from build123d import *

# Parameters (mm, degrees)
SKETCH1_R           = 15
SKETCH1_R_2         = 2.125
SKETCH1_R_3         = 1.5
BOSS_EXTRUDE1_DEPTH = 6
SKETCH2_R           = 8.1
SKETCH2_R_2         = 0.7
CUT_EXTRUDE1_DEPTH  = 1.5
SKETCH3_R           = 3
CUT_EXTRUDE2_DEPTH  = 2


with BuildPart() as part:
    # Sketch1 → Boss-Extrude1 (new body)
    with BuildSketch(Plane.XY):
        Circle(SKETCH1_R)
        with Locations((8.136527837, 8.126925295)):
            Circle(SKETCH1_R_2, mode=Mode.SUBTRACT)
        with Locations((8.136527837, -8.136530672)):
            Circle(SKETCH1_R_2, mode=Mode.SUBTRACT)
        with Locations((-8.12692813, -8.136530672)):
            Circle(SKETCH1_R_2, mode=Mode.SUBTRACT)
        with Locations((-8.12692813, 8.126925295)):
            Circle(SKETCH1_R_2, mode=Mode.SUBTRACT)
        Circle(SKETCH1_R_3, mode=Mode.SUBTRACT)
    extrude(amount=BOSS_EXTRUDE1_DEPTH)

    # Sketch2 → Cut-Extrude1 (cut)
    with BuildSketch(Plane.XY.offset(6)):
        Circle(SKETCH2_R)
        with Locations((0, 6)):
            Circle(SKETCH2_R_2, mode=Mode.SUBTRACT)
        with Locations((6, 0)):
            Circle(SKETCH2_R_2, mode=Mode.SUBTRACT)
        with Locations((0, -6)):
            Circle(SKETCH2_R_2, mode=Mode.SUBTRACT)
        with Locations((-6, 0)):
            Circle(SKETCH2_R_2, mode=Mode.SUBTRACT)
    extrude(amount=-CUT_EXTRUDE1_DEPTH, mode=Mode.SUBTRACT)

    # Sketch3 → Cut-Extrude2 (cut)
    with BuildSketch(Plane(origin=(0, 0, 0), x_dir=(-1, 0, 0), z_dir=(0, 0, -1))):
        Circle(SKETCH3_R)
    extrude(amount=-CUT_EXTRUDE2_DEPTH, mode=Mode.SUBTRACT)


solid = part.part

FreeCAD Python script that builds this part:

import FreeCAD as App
import Part
import Sketcher

V = App.Vector
Q = App.Units.Quantity

doc = App.newDocument("Part")
body = doc.addObject("PartDesign::Body", "Body")

# Sketch on XY plane
sketch1 = doc.addObject("Sketcher::SketchObject", "Sketch")
body.addObject(sketch1)
sketch1.AttachmentSupport = (doc.XY_Plane, [""])
sketch1.MapMode = "FlatFace"
sketch1.addGeometry([
    Part.Circle(V(0, 0, 0), V(0, 0, 1), 15),  # 0
    Part.Circle(V(-8.1, -8.1, 0), V(0, 0, 1), 2.1),  # 1
    Part.Circle(V(8.1, -8.1, 0), V(0, 0, 1), 2.1),  # 2
    Part.Circle(V(0, 0, 0), V(0, 0, 1), 1.5),  # 3
    Part.Circle(V(-8.1, 8.1, 0), V(0, 0, 1), 2.1),  # 4
    Part.Circle(V(8.1, 8.1, 0), V(0, 0, 1), 2.1),  # 5
], False)
sketch1.addConstraint([
    Sketcher.Constraint("Coincident", 0, 3, -1, 1),
    Sketcher.Constraint("Coincident", 3, 3, -1, 1),
    Sketcher.Constraint("Equal", 1, 2),
    Sketcher.Constraint("Equal", 2, 4),
    Sketcher.Constraint("Equal", 4, 5),
    Sketcher.Constraint("Horizontal", 1, 3, 2, 3),
    Sketcher.Constraint("Horizontal", 4, 3, 5, 3),
    Sketcher.Constraint("Vertical", 1, 3, 4, 3),
    Sketcher.Constraint("Vertical", 2, 3, 5, 3),
    Sketcher.Constraint("Diameter", 0, Q("30 mm")),
    Sketcher.Constraint("Diameter", 3, Q("3 mm")),
    Sketcher.Constraint("Diameter", 1, Q("4.25 mm")),
    Sketcher.Constraint("DistanceX", 1, 3, -1, 1, Q("8.126928 mm")),
    Sketcher.Constraint("DistanceY", 1, 3, -1, 1, Q("8.136531 mm")),
    Sketcher.Constraint("DistanceX", -1, 1, 2, 3, Q("8.136528 mm")),
    Sketcher.Constraint("DistanceY", -1, 1, 4, 3, Q("8.126925 mm")),
])
pad1 = doc.addObject("PartDesign::Pad", "Pad")
body.addObject(pad1)
pad1.Profile = sketch1
pad1.Length = 6

# Sketch on XY plane
sketch2 = doc.addObject("Sketcher::SketchObject", "Sketch001")
body.addObject(sketch2)
sketch2.AttachmentSupport = (doc.XY_Plane, [""])
sketch2.MapMode = "FlatFace"
sketch2.AttachmentOffset = App.Placement(V(0, 0, 6), App.Rotation())
sketch2.addGeometry([
    Part.Circle(V(0, 0, 0), V(0, 0, 1), 8.1),  # 0
    Part.Circle(V(0, -6, 0), V(0, 0, 1), 0.7),  # 1
    Part.Circle(V(-6, 0, 0), V(0, 0, 1), 0.7),  # 2
    Part.Circle(V(6, 0, 0), V(0, 0, 1), 0.7),  # 3
    Part.Circle(V(0, 6, 0), V(0, 0, 1), 0.7),  # 4
], False)
sketch2.addConstraint([
    Sketcher.Constraint("Coincident", 0, 3, -1, 1),
    Sketcher.Constraint("Equal", 1, 2),
    Sketcher.Constraint("Equal", 2, 3),
    Sketcher.Constraint("Equal", 3, 4),
    Sketcher.Constraint("Symmetric", 2, 3, 3, 3, -1, 1),
    Sketcher.Constraint("Symmetric", 1, 3, 4, 3, -1, 1),
    Sketcher.Constraint("PointOnObject", 1, 3, -2),
    Sketcher.Constraint("PointOnObject", 2, 3, -1),
    Sketcher.Constraint("Diameter", 0, Q("16.2 mm")),
    Sketcher.Constraint("Diameter", 1, Q("1.4 mm")),
    Sketcher.Constraint("DistanceY", 1, 3, -1, 1, Q("6 mm")),
    Sketcher.Constraint("DistanceX", 2, 3, -1, 1, Q("6 mm")),
])
pocket1 = doc.addObject("PartDesign::Pocket", "Pocket")
body.addObject(pocket1)
pocket1.Profile = sketch2
pocket1.Length = 1.5

# Sketch on XY plane
sketch3 = doc.addObject("Sketcher::SketchObject", "Sketch002")
body.addObject(sketch3)
sketch3.AttachmentSupport = (doc.XY_Plane, [""])
sketch3.MapMode = "FlatFace"
sketch3.addGeometry(Part.Circle(V(0, 0, 0), V(0, 0, 1), 3), False)
sketch3.addConstraint([
    Sketcher.Constraint("Coincident", 0, 3, -1, 1),
    Sketcher.Constraint("Diameter", 0, Q("6 mm")),
])
pocket2 = doc.addObject("PartDesign::Pocket", "Pocket001")
body.addObject(pocket2)
pocket2.Profile = sketch3
pocket2.Length = 2
pocket2.Reversed = True

doc.recompute()
